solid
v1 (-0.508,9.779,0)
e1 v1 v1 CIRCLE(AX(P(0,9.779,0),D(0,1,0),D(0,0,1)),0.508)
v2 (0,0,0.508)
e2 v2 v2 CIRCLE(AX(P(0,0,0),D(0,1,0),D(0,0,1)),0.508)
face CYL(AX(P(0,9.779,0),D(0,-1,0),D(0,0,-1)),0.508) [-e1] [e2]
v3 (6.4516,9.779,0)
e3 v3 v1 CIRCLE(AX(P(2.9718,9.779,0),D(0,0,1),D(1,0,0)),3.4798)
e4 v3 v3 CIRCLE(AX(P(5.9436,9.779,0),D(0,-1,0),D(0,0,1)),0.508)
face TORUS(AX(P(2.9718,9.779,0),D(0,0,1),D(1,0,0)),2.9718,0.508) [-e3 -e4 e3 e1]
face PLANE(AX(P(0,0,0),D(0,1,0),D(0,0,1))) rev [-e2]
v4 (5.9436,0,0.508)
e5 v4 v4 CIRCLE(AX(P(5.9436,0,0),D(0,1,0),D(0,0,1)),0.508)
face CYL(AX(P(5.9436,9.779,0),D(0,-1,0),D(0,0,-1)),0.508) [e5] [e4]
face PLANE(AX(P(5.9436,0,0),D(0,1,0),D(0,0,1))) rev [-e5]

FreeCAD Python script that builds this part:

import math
import FreeCAD as App
import Part
import Sketcher

V = App.Vector
Q = App.Units.Quantity

doc = App.newDocument("Part")
params = doc.addObject("Spreadsheet::Sheet", "Params")
for row, (alias, value) in enumerate([
    ("sketch1_diameter", "0.04 in"),
    ("pad1_length", "0.385 in"),
    ("sketch2_diameter", "0.04 in"),
    ("pad2_length", "0.385 in"),
    ("sketch3_diameter", "0.04 in"),
    ("sketch4_radius", "0.117 in"),
], start=1):
    params.set(f"A{row}", alias)
    params.set(f"B{row}", "=" + value)
    params.setAlias(f"B{row}", alias)

body = doc.addObject("PartDesign::Body", "Body")

# Sketch on XZ plane
sketch1 = doc.addObject("Sketcher::SketchObject", "Sketch")
body.addObject(sketch1)
sketch1.AttachmentSupport = (doc.XZ_Plane, [""])
sketch1.MapMode = "FlatFace"
sketch1.addGeometry(Part.Circle(V(0, 0, 0), V(0, 0, 1), 0.5), False)
sketch1.addConstraint(Sketcher.Constraint("Coincident", 0, 3, -1, 1))
sketch1.addConstraint(Sketcher.Constraint("Diameter", 0, Q("0.04 in")))
sketch1.setExpression("Constraints[1]", "Params.sketch1_diameter")
pad1 = doc.addObject("PartDesign::Pad", "Pad")
body.addObject(pad1)
pad1.Profile = sketch1
pad1.setExpression("Length", "Params.pad1_length")
pad1.Reversed = True
body2 = doc.addObject("PartDesign::Body", "Body001")

# Sketch on XZ plane
sketch2 = doc.addObject("Sketcher::SketchObject", "Sketch001")
body2.addObject(sketch2)
sketch2.AttachmentSupport = (doc.getObject("XZ_Plane001"), [""])
sketch2.MapMode = "FlatFace"
sketch2.addGeometry(Part.Circle(V(5.9, 0, 0), V(0, 0, 1), 0.5), False)
sketch2.addConstraint(Sketcher.Constraint("PointOnObject", 0, 3, -1))
sketch2.addConstraint(Sketcher.Constraint("Diameter", 0, Q("0.04 in")))
sketch2.addConstraint(Sketcher.Constraint("DistanceX", -1, 1, 0, 3, Q("0.234 in")))
sketch2.setExpression("Constraints[1]", "Params.sketch2_diameter")
pad2 = doc.addObject("PartDesign::Pad", "Pad001")
body2.addObject(pad2)
pad2.Profile = sketch2
pad2.setExpression("Length", "Params.pad2_length")
pad2.Reversed = True
body.AllowCompound = True
doc.recompute()

boolean = doc.addObject("PartDesign::Boolean", "Boolean")
body.addObject(boolean)
boolean.Type = "Fuse"
boolean.addObjects([body2])

# Sketch on XZ plane
sketch3 = doc.addObject("Sketcher::SketchObject", "Sketch002")
body.addObject(sketch3)
sketch3.AttachmentSupport = (doc.XZ_Plane, [""])
sketch3.MapMode = "FlatFace"
sketch3.AttachmentOffset = App.Placement(V(0, 0, -0.385 * 25.4), App.Rotation())
sketch3.addGeometry(Part.Circle(V(0, 0, 0), V(0, 0, 1), 0.5), False)
sketch3.addConstraint(Sketcher.Constraint("Coincident", 0, 3, -1, 1))
sketch3.addConstraint(Sketcher.Constraint("Diameter", 0, Q("0.04 in")))
sketch3.setExpression("Constraints[1]", "Params.sketch3_diameter")

# Sketch on XY plane
sketch4 = doc.addObject("Sketcher::SketchObject", "Sketch003")
body.addObject(sketch4)
sketch4.AttachmentSupport = (doc.XY_Plane, [""])
sketch4.MapMode = "FlatFace"
sketch4.addGeometry(Part.ArcOfCircle(Part.Circle(V(3, 9.8, 0), V(0, 0, 1), 3), math.radians(0), math.radians(180)), False)
sketch4.addConstraint(Sketcher.Constraint("PointOnObject", 0, 2, -2))
sketch4.addConstraint(Sketcher.Constraint("Radius", 0, Q("0.117 in")))
sketch4.addConstraint(Sketcher.Constraint("DistanceY", -1, 1, 0, 3, Q("0.385 in")))
sketch4.addConstraint(Sketcher.Constraint("DistanceY", -1, 1, 0, 1, Q("0.385 in")))
sketch4.addConstraint(Sketcher.Constraint("DistanceY", -1, 1, 0, 2, Q("0.385 in")))
sketch4.setExpression("Constraints[1]", "Params.sketch4_radius")
doc.recompute()

additivepipe = doc.addObject("PartDesign::AdditivePipe", "AdditivePipe")
body.addObject(additivepipe)
additivepipe.Profile = sketch3
additivepipe.Spine = (sketch4, ["Edge1"])

doc.recompute()
